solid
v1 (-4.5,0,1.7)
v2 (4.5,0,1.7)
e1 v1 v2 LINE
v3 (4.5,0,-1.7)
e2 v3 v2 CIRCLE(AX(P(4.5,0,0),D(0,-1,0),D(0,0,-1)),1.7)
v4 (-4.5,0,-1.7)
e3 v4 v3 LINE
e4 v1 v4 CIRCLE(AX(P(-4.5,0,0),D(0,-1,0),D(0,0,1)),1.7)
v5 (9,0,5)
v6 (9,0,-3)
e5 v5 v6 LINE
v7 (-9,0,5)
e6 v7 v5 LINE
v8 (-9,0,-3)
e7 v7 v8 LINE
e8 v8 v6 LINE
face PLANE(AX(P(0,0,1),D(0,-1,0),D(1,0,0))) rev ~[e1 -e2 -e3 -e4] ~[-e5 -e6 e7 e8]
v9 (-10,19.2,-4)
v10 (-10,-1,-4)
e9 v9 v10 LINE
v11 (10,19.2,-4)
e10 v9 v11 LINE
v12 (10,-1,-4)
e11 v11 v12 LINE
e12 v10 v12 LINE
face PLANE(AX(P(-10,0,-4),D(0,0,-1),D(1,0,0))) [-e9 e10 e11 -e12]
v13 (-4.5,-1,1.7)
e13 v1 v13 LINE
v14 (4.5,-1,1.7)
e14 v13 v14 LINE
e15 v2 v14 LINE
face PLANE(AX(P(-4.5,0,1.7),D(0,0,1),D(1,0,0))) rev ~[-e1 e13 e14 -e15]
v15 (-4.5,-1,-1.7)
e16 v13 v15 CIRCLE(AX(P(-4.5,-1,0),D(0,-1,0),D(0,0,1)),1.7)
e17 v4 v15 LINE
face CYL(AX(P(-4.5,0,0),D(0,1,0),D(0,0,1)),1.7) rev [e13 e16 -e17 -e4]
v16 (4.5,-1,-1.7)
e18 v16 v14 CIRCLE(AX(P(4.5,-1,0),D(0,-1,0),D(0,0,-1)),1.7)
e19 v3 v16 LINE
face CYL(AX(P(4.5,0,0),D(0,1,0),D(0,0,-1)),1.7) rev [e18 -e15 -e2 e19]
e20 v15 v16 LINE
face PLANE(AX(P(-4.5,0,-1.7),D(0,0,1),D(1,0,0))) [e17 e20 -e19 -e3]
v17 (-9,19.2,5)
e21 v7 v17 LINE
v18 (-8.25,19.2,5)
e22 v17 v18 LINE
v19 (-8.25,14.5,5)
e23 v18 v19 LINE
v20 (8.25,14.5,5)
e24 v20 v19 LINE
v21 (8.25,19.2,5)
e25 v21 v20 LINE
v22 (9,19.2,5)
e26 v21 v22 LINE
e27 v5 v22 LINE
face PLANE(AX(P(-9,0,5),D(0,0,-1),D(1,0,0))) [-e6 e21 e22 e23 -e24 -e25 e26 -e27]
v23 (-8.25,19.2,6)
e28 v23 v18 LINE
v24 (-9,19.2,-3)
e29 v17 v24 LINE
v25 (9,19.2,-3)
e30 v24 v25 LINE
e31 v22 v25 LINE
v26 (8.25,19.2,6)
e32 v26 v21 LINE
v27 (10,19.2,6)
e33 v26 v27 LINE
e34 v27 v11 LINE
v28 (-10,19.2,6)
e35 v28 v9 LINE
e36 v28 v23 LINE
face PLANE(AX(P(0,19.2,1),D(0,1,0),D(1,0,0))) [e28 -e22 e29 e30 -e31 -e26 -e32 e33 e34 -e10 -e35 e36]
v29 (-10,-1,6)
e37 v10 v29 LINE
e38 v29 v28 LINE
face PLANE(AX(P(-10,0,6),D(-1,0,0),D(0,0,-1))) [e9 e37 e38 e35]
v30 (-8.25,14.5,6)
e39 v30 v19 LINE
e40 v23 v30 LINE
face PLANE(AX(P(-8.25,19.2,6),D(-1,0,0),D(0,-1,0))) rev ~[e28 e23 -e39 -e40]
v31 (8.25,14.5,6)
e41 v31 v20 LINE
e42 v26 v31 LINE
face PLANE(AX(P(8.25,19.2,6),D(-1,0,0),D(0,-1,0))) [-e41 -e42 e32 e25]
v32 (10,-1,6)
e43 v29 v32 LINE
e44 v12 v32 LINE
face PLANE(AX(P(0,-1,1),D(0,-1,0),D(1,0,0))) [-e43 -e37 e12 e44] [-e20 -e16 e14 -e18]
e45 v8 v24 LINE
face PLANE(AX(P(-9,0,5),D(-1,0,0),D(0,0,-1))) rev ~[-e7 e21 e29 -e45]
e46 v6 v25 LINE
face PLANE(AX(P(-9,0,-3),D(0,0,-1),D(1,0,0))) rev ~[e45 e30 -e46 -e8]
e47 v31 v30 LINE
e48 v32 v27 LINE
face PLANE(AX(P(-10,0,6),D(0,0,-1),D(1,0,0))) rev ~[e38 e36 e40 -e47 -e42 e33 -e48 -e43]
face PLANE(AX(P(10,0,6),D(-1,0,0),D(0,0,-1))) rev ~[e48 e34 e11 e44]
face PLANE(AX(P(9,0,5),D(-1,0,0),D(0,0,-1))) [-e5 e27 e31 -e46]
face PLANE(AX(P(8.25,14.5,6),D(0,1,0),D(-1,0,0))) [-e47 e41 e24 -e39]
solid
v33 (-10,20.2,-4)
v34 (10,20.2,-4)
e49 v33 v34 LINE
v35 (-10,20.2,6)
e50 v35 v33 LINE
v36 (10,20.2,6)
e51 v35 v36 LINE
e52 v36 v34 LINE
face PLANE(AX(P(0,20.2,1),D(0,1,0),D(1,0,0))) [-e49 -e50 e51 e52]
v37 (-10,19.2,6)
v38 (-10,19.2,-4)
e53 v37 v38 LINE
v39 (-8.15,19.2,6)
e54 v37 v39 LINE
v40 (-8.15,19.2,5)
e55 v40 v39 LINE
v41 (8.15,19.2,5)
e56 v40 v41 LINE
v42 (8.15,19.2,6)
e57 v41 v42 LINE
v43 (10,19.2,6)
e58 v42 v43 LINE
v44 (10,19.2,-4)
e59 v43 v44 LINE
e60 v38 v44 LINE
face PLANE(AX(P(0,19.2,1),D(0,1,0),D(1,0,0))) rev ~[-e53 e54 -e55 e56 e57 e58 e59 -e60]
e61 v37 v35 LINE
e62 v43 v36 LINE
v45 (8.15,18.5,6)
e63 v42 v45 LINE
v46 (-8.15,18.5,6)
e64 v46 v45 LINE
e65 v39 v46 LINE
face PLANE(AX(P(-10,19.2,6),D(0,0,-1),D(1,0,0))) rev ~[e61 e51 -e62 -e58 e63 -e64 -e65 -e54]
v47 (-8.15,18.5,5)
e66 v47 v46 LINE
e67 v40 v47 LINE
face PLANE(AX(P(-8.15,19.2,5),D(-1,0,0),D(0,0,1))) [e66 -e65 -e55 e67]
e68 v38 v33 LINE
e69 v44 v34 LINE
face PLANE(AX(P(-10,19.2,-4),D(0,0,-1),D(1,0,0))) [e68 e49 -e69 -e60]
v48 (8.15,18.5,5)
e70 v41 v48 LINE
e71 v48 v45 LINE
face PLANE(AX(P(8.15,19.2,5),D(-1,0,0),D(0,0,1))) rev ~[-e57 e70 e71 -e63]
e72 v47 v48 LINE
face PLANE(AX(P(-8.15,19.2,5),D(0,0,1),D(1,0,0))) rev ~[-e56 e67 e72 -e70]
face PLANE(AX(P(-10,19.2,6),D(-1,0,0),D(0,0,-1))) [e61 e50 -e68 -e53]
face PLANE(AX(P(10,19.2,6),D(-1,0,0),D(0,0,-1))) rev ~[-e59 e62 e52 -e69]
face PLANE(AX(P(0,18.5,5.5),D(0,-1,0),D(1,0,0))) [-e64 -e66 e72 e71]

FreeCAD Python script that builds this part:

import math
import FreeCAD as App
import Part
import Sketcher
Q = App.Units.Quantity

doc = App.newDocument("Part")
body = doc.addObject("PartDesign::Body", "Body")

# Sketch on XZ plane
sketch1 = body.newObject("Sketcher::SketchObject", "Sketch")
sketch1.AttachmentSupport = (doc.getObject("XZ_Plane"), [""])
sketch1.MapMode = "FlatFace"
sketch1.addGeometry(Part.LineSegment(App.Vector(-10, 6, 0), App.Vector(-10, -4, 0)), False)
sketch1.addGeometry(Part.LineSegment(App.Vector(-10, -4, 0), App.Vector(10, -4, 0)), False)
sketch1.addGeometry(Part.LineSegment(App.Vector(10, -4, 0), App.Vector(10, 6, 0)), False)
sketch1.addGeometry(Part.LineSegment(App.Vector(10, 6, 0), App.Vector(-10, 6, 0)), False)
sketch1.addGeometry(Part.ArcOfCircle(Part.Circle(App.Vector(-4.5, 0, 0), App.Vector(0, 0, 1), 1.7), math.radians(90), math.radians(270)), False)
sketch1.addGeometry(Part.LineSegment(App.Vector(-4.5, 1.7, 0), App.Vector(4.5, 1.7, 0)), False)
sketch1.addGeometry(Part.ArcOfCircle(Part.Circle(App.Vector(4.5, 0, 0), App.Vector(0, 0, 1), 1.7), math.radians(-90), math.radians(90)), False)
sketch1.addGeometry(Part.LineSegment(App.Vector(4.5, -1.7, 0), App.Vector(-4.5, -1.7, 0)), False)
sketch1.addConstraint(Sketcher.Constraint("Coincident", 0, 2, 1, 1))
sketch1.addConstraint(Sketcher.Constraint("Coincident", 1, 2, 2, 1))
sketch1.addConstraint(Sketcher.Constraint("Coincident", 2, 2, 3, 1))
sketch1.addConstraint(Sketcher.Constraint("Coincident", 3, 2, 0, 1))
sketch1.addConstraint(Sketcher.Constraint("Tangent", 4, 1, 5, 1))
sketch1.addConstraint(Sketcher.Constraint("Tangent", 5, 2, 6, 2))
sketch1.addConstraint(Sketcher.Constraint("Tangent", 6, 1, 7, 1))
sketch1.addConstraint(Sketcher.Constraint("Tangent", 7, 2, 4, 2))
sketch1.addConstraint(Sketcher.Constraint("Vertical", 0))
sketch1.addConstraint(Sketcher.Constraint("Horizontal", 1))
sketch1.addConstraint(Sketcher.Constraint("Vertical", 2))
sketch1.addConstraint(Sketcher.Constraint("Horizontal", 3))
sketch1.addConstraint(Sketcher.Constraint("Horizontal", 5))
sketch1.addConstraint(Sketcher.Constraint("Horizontal", 7))
sketch1.addConstraint(Sketcher.Constraint("Symmetric", 4, 3, 6, 3, -1, 1))
sketch1.addConstraint(Sketcher.Constraint("Radius", 4, Q("1.7 mm")))
sketch1.addConstraint(Sketcher.Constraint("DistanceX", 1, 1, 1, 2, Q("20 mm")))
sketch1.addConstraint(Sketcher.Constraint("DistanceX", 5, 1, 5, 2, Q("9 mm")))
sketch1.addConstraint(Sketcher.Constraint("DistanceY", 0, 2, 0, 1, Q("10 mm")))
sketch1.addConstraint(Sketcher.Constraint("DistanceX", 0, 2, -1, 1, Q("10 mm")))
sketch1.addConstraint(Sketcher.Constraint("DistanceY", 0, 2, -1, 1, Q("4 mm")))
pad1 = body.newObject("PartDesign::Pad", "Pad")
pad1.Profile = sketch1
pad1.Length = 1

# Sketch on XZ plane
sketch2 = body.newObject("Sketcher::SketchObject", "Sketch001")
sketch2.AttachmentSupport = (doc.getObject("XZ_Plane"), [""])
sketch2.MapMode = "FlatFace"
sketch2.addGeometry(Part.LineSegment(App.Vector(-10, -4, 0), App.Vector(-10, 6, 0)), False)
sketch2.addGeometry(Part.LineSegment(App.Vector(-10, 6, 0), App.Vector(10, 6, 0)), False)
sketch2.addGeometry(Part.LineSegment(App.Vector(10, 6, 0), App.Vector(10, -4, 0)), False)
sketch2.addGeometry(Part.LineSegment(App.Vector(10, -4, 0), App.Vector(-10, -4, 0)), False)
sketch2.addGeometry(Part.LineSegment(App.Vector(9, 5, 0), App.Vector(-9, 5, 0)), False)
sketch2.addGeometry(Part.LineSegment(App.Vector(-9, 5, 0), App.Vector(-9, -3, 0)), False)
sketch2.addGeometry(Part.LineSegment(App.Vector(-9, -3, 0), App.Vector(9, -3, 0)), False)
sketch2.addGeometry(Part.LineSegment(App.Vector(9, -3, 0), App.Vector(9, 5, 0)), False)
sketch2.addConstraint(Sketcher.Constraint("Coincident", 0, 2, 1, 1))
sketch2.addConstraint(Sketcher.Constraint("Coincident", 1, 2, 2, 1))
sketch2.addConstraint(Sketcher.Constraint("Coincident", 2, 2, 3, 1))
sketch2.addConstraint(Sketcher.Constraint("Coincident", 3, 2, 0, 1))
sketch2.addConstraint(Sketcher.Constraint("Coincident", 4, 2, 5, 1))
sketch2.addConstraint(Sketcher.Constraint("Coincident", 5, 2, 6, 1))
sketch2.addConstraint(Sketcher.Constraint("Coincident", 6, 2, 7, 1))
sketch2.addConstraint(Sketcher.Constraint("Coincident", 7, 2, 4, 1))
sketch2.addConstraint(Sketcher.Constraint("Vertical", 0))
sketch2.addConstraint(Sketcher.Constraint("Horizontal", 1))
sketch2.addConstraint(Sketcher.Constraint("Vertical", 2))
sketch2.addConstraint(Sketcher.Constraint("Horizontal", 3))
sketch2.addConstraint(Sketcher.Constraint("Horizontal", 4))
sketch2.addConstraint(Sketcher.Constraint("Vertical", 5))
sketch2.addConstraint(Sketcher.Constraint("Horizontal", 6))
sketch2.addConstraint(Sketcher.Constraint("Vertical", 7))
sketch2.addConstraint(Sketcher.Constraint("DistanceX", 1, 1, 1, 2, Q("20 mm")))
sketch2.addConstraint(Sketcher.Constraint("DistanceX", 4, 2, 4, 1, Q("18 mm")))
sketch2.addConstraint(Sketcher.Constraint("DistanceY", 0, 1, 0, 2, Q("10 mm")))
sketch2.addConstraint(Sketcher.Constraint("DistanceY", 5, 2, 5, 1, Q("8 mm")))
sketch2.addConstraint(Sketcher.Constraint("DistanceX", 0, 2, -1, 1, Q("10 mm")))
sketch2.addConstraint(Sketcher.Constraint("DistanceY", -1, 1, 0, 2, Q("6 mm")))
sketch2.addConstraint(Sketcher.Constraint("DistanceX", 4, 2, -1, 1, Q("9 mm")))
sketch2.addConstraint(Sketcher.Constraint("DistanceY", -1, 1, 4, 2, Q("5 mm")))
pad2 = body.newObject("PartDesign::Pad", "Pad001")
pad2.Profile = sketch2
pad2.Length = 19.2
pad2.Reversed = True

# Sketch on XY plane
sketch3 = body.newObject("Sketcher::SketchObject", "Sketch002")
sketch3.AttachmentSupport = (doc.getObject("XY_Plane"), [""])
sketch3.MapMode = "FlatFace"
sketch3.AttachmentOffset = App.Placement(App.Vector(0, 0, 6), App.Rotation())
sketch3.addGeometry(Part.LineSegment(App.Vector(8.2, 14.5, 0), App.Vector(8.2, 19.2, 0)), False)
sketch3.addGeometry(Part.LineSegment(App.Vector(8.2, 19.2, 0), App.Vector(-8.2, 19.2, 0)), False)
sketch3.addGeometry(Part.LineSegment(App.Vector(-8.2, 19.2, 0), App.Vector(-8.2, 14.5, 0)), False)
sketch3.addGeometry(Part.LineSegment(App.Vector(-8.2, 14.5, 0), App.Vector(8.2, 14.5, 0)), False)
sketch3.addConstraint(Sketcher.Constraint("Coincident", 0, 2, 1, 1))
sketch3.addConstraint(Sketcher.Constraint("Coincident", 1, 2, 2, 1))
sketch3.addConstraint(Sketcher.Constraint("Coincident", 2, 2, 3, 1))
sketch3.addConstraint(Sketcher.Constraint("Coincident", 3, 2, 0, 1))
sketch3.addConstraint(Sketcher.Constraint("Vertical", 0))
sketch3.addConstraint(Sketcher.Constraint("Horizontal", 1))
sketch3.addConstraint(Sketcher.Constraint("Vertical", 2))
sketch3.addConstraint(Sketcher.Constraint("Horizontal", 3))
sketch3.addConstraint(Sketcher.Constraint("DistanceX", 1, 2, 1, 1, Q("16.5 mm")))
sketch3.addConstraint(Sketcher.Constraint("DistanceY", 0, 1, 0, 2, Q("4.7 mm")))
sketch3.addConstraint(Sketcher.Constraint("DistanceY", -1, 1, 0, 2, Q("19.2 mm")))
sketch3.addConstraint(Sketcher.Constraint("DistanceX", -1, 1, 0, 2, Q("8.25 mm")))
pocket1 = body.newObject("PartDesign::Pocket", "Pocket")
pocket1.Profile = sketch3
pocket1.Length = 1
body2 = doc.addObject("PartDesign::Body", "Body001")

# Sketch on XZ plane
sketch4 = body2.newObject("Sketcher::SketchObject", "Sketch003")
sketch4.AttachmentSupport = (doc.getObject("XZ_Plane001"), [""])
sketch4.MapMode = "FlatFace"
sketch4.AttachmentOffset = App.Placement(App.Vector(0, 0, -19.2), App.Rotation())
sketch4.addGeometry(Part.LineSegment(App.Vector(-10, -4, 0), App.Vector(-10, 6, 0)), False)
sketch4.addGeometry(Part.LineSegment(App.Vector(-10, 6, 0), App.Vector(10, 6, 0)), False)
sketch4.addGeometry(Part.LineSegment(App.Vector(10, 6, 0), App.Vector(10, -4, 0)), False)
sketch4.addGeometry(Part.LineSegment(App.Vector(10, -4, 0), App.Vector(-10, -4, 0)), False)
sketch4.addConstraint(Sketcher.Constraint("Coincident", 0, 2, 1, 1))
sketch4.addConstraint(Sketcher.Constraint("Coincident", 1, 2, 2, 1))
sketch4.addConstraint(Sketcher.Constraint("Coincident", 2, 2, 3, 1))
sketch4.addConstraint(Sketcher.Constraint("Coincident", 3, 2, 0, 1))
sketch4.addConstraint(Sketcher.Constraint("Vertical", 0))
sketch4.addConstraint(Sketcher.Constraint("Horizontal", 1))
sketch4.addConstraint(Sketcher.Constraint("Vertical", 2))
sketch4.addConstraint(Sketcher.Constraint("Horizontal", 3))
sketch4.addConstraint(Sketcher.Constraint("DistanceX", 1, 1, 1, 2, Q("20 mm")))
sketch4.addConstraint(Sketcher.Constraint("DistanceY", 0, 1, 0, 2, Q("10 mm")))
sketch4.addConstraint(Sketcher.Constraint("DistanceX", 0, 2, -1, 1, Q("10 mm")))
sketch4.addConstraint(Sketcher.Constraint("DistanceY", -1, 1, 0, 2, Q("6 mm")))
pad3 = body2.newObject("PartDesign::Pad", "Pad002")
pad3.Profile = sketch4
pad3.Length = 1
pad3.Reversed = True

# Sketch on XZ plane
sketch5 = body2.newObject("Sketcher::SketchObject", "Sketch004")
sketch5.AttachmentSupport = (doc.getObject("XZ_Plane001"), [""])
sketch5.MapMode = "FlatFace"
sketch5.AttachmentOffset = App.Placement(App.Vector(0, 0, -19.2), App.Rotation())
sketch5.addGeometry(Part.LineSegment(App.Vector(-8.2, 6, 0), App.Vector(-8.2, 5, 0)), False)
sketch5.addGeometry(Part.LineSegment(App.Vector(-8.2, 5, 0), App.Vector(8.2, 5, 0)), False)
sketch5.addGeometry(Part.LineSegment(App.Vector(8.2, 5, 0), App.Vector(8.2, 6, 0)), False)
sketch5.addGeometry(Part.LineSegment(App.Vector(8.2, 6, 0), App.Vector(-8.2, 6, 0)), False)
sketch5.addConstraint(Sketcher.Constraint("Coincident", 0, 2, 1, 1))
sketch5.addConstraint(Sketcher.Constraint("Coincident", 1, 2, 2, 1))
sketch5.addConstraint(Sketcher.Constraint("Coincident", 2, 2, 3, 1))
sketch5.addConstraint(Sketcher.Constraint("Coincident", 3, 2, 0, 1))
sketch5.addConstraint(Sketcher.Constraint("Vertical", 0))
sketch5.addConstraint(Sketcher.Constraint("Horizontal", 1))
sketch5.addConstraint(Sketcher.Constraint("Vertical", 2))
sketch5.addConstraint(Sketcher.Constraint("Horizontal", 3))
sketch5.addConstraint(Sketcher.Constraint("DistanceY", 0, 2, 0, 1, Q("1 mm")))
sketch5.addConstraint(Sketcher.Constraint("DistanceX", 1, 1, 1, 2, Q("16.3 mm")))
sketch5.addConstraint(Sketcher.Constraint("DistanceY", -1, 1, 0, 2, Q("5 mm")))
sketch5.addConstraint(Sketcher.Constraint("DistanceX", 0, 2, -1, 1, Q("8.15 mm")))
pad4 = body2.newObject("PartDesign::Pad", "Pad003")
pad4.Profile = sketch5
pad4.Length = 0.7

doc.recompute()
